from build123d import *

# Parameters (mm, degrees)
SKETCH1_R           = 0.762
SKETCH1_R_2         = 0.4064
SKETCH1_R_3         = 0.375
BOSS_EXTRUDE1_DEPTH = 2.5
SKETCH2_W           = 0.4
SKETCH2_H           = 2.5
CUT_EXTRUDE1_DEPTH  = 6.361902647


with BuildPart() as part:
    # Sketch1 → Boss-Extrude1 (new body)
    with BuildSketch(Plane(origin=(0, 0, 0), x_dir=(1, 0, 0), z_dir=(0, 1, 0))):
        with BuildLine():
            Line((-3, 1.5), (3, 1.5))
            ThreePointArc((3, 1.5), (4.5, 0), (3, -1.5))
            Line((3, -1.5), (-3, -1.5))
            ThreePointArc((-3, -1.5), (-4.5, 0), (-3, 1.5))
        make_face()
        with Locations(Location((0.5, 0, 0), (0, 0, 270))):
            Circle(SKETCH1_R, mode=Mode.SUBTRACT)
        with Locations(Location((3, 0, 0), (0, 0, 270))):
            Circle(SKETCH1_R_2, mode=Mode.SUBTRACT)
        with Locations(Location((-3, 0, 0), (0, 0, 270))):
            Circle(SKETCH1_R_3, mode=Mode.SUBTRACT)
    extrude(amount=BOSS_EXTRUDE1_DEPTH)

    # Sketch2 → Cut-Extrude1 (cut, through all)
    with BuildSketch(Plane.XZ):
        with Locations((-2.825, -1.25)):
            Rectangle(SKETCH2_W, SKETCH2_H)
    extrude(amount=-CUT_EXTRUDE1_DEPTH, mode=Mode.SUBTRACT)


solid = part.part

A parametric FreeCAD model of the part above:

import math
import FreeCAD as App
import Part
import Sketcher
Q = App.Units.Quantity

doc = App.newDocument("Part")
body = doc.addObject("PartDesign::Body", "Body")

sketch1 = body.newObject("Sketcher::SketchObject", "Sketch")
sketch1.AttachmentSupport = (doc.getObject("XZ_Plane"), [""])
sketch1.MapMode = "FlatFace"
sketch1.addGeometry([
    Part.LineSegment(App.Vector(3, -1.5, 0), App.Vector(-3, -1.5, 0)),
    Part.ArcOfCircle(Part.Circle(App.Vector(-3, 0, 0), App.Vector(0, 0, 1), 1.5), math.radians(90), math.radians(270)),
    Part.LineSegment(App.Vector(-3, 1.5, 0), App.Vector(3, 1.5, 0)),
    Part.ArcOfCircle(Part.Circle(App.Vector(3, 0, 0), App.Vector(0, 0, 1), 1.5), math.radians(-90), math.radians(90)),
    Part.Circle(App.Vector(3, 0, 0), App.Vector(0, 0, 1), 0.41),
    Part.Circle(App.Vector(0.5, 0, 0), App.Vector(0, 0, 1), 0.76),
    Part.Circle(App.Vector(-3, 0, 0), App.Vector(0, 0, 1), 0.38),
], False)
sketch1.addConstraint([
    Sketcher.Constraint("Tangent", 0, 2, 1, 2),
    Sketcher.Constraint("Tangent", 1, 1, 2, 1),
    Sketcher.Constraint("Tangent", 2, 2, 3, 2),
    Sketcher.Constraint("Tangent", 3, 1, 0, 1),
    Sketcher.Constraint("Horizontal", 0),
    Sketcher.Constraint("Horizontal", 2),
    Sketcher.Constraint("Coincident", 4, 3, 3, 3),
    Sketcher.Constraint("Coincident", 6, 3, 1, 3),
    Sketcher.Constraint("Symmetric", 1, 3, 3, 3, -1, 1),
    Sketcher.Constraint("PointOnObject", 5, 3, -1),
    Sketcher.Constraint("Radius", 1, Q("1.5 mm")),
    Sketcher.Constraint("Diameter", 6, Q("0.75 mm")),
    Sketcher.Constraint("DistanceX", 0, 2, 0, 1, Q("6 mm")),
    Sketcher.Constraint("Diameter", 5, Q("1.524 mm")),
    Sketcher.Constraint("Diameter", 4, Q("0.8128 mm")),
    Sketcher.Constraint("DistanceX", -1, 1, 5, 3, Q("0.5 mm")),
])
pad1 = body.newObject("PartDesign::Pad", "Pad")
pad1.Profile = sketch1
pad1.Length = 2.5
pad1.Reversed = True

sketch2 = body.newObject("Sketcher::SketchObject", "Sketch001")
sketch2.AttachmentSupport = (doc.getObject("XZ_Plane"), [""])
sketch2.MapMode = "FlatFace"
sketch2.addGeometry([
    Part.LineSegment(App.Vector(-3.02, 0, 0), App.Vector(-3.02, -2.5, 0)),
    Part.LineSegment(App.Vector(-3.02, -2.5, 0), App.Vector(-2.62, -2.5, 0)),
    Part.LineSegment(App.Vector(-2.62, -2.5, 0), App.Vector(-2.62, 0, 0)),
    Part.LineSegment(App.Vector(-2.62, 0, 0), App.Vector(-3.02, 0, 0)),
], False)
sketch2.addConstraint([
    Sketcher.Constraint("Coincident", 0, 2, 1, 1),
    Sketcher.Constraint("Coincident", 1, 2, 2, 1),
    Sketcher.Constraint("Coincident", 2, 2, 3, 1),
    Sketcher.Constraint("Coincident", 3, 2, 0, 1),
    Sketcher.Constraint("Vertical", 0),
    Sketcher.Constraint("Horizontal", 1),
    Sketcher.Constraint("Vertical", 2),
    Sketcher.Constraint("Horizontal", 3),
    Sketcher.Constraint("PointOnObject", 2, 2, -1),
    Sketcher.Constraint("DistanceX", 1, 1, 1, 2, Q("0.4 mm")),
    Sketcher.Constraint("DistanceY", 0, 2, 0, 1, Q("2.5 mm")),
    Sketcher.Constraint("DistanceX", 0, 2, -1, 1, Q("3.025 mm")),
])
pocket1 = body.newObject("PartDesign::Pocket", "Pocket")
pocket1.Profile = sketch2
pocket1.Type = "ThroughAll"

doc.recompute()
